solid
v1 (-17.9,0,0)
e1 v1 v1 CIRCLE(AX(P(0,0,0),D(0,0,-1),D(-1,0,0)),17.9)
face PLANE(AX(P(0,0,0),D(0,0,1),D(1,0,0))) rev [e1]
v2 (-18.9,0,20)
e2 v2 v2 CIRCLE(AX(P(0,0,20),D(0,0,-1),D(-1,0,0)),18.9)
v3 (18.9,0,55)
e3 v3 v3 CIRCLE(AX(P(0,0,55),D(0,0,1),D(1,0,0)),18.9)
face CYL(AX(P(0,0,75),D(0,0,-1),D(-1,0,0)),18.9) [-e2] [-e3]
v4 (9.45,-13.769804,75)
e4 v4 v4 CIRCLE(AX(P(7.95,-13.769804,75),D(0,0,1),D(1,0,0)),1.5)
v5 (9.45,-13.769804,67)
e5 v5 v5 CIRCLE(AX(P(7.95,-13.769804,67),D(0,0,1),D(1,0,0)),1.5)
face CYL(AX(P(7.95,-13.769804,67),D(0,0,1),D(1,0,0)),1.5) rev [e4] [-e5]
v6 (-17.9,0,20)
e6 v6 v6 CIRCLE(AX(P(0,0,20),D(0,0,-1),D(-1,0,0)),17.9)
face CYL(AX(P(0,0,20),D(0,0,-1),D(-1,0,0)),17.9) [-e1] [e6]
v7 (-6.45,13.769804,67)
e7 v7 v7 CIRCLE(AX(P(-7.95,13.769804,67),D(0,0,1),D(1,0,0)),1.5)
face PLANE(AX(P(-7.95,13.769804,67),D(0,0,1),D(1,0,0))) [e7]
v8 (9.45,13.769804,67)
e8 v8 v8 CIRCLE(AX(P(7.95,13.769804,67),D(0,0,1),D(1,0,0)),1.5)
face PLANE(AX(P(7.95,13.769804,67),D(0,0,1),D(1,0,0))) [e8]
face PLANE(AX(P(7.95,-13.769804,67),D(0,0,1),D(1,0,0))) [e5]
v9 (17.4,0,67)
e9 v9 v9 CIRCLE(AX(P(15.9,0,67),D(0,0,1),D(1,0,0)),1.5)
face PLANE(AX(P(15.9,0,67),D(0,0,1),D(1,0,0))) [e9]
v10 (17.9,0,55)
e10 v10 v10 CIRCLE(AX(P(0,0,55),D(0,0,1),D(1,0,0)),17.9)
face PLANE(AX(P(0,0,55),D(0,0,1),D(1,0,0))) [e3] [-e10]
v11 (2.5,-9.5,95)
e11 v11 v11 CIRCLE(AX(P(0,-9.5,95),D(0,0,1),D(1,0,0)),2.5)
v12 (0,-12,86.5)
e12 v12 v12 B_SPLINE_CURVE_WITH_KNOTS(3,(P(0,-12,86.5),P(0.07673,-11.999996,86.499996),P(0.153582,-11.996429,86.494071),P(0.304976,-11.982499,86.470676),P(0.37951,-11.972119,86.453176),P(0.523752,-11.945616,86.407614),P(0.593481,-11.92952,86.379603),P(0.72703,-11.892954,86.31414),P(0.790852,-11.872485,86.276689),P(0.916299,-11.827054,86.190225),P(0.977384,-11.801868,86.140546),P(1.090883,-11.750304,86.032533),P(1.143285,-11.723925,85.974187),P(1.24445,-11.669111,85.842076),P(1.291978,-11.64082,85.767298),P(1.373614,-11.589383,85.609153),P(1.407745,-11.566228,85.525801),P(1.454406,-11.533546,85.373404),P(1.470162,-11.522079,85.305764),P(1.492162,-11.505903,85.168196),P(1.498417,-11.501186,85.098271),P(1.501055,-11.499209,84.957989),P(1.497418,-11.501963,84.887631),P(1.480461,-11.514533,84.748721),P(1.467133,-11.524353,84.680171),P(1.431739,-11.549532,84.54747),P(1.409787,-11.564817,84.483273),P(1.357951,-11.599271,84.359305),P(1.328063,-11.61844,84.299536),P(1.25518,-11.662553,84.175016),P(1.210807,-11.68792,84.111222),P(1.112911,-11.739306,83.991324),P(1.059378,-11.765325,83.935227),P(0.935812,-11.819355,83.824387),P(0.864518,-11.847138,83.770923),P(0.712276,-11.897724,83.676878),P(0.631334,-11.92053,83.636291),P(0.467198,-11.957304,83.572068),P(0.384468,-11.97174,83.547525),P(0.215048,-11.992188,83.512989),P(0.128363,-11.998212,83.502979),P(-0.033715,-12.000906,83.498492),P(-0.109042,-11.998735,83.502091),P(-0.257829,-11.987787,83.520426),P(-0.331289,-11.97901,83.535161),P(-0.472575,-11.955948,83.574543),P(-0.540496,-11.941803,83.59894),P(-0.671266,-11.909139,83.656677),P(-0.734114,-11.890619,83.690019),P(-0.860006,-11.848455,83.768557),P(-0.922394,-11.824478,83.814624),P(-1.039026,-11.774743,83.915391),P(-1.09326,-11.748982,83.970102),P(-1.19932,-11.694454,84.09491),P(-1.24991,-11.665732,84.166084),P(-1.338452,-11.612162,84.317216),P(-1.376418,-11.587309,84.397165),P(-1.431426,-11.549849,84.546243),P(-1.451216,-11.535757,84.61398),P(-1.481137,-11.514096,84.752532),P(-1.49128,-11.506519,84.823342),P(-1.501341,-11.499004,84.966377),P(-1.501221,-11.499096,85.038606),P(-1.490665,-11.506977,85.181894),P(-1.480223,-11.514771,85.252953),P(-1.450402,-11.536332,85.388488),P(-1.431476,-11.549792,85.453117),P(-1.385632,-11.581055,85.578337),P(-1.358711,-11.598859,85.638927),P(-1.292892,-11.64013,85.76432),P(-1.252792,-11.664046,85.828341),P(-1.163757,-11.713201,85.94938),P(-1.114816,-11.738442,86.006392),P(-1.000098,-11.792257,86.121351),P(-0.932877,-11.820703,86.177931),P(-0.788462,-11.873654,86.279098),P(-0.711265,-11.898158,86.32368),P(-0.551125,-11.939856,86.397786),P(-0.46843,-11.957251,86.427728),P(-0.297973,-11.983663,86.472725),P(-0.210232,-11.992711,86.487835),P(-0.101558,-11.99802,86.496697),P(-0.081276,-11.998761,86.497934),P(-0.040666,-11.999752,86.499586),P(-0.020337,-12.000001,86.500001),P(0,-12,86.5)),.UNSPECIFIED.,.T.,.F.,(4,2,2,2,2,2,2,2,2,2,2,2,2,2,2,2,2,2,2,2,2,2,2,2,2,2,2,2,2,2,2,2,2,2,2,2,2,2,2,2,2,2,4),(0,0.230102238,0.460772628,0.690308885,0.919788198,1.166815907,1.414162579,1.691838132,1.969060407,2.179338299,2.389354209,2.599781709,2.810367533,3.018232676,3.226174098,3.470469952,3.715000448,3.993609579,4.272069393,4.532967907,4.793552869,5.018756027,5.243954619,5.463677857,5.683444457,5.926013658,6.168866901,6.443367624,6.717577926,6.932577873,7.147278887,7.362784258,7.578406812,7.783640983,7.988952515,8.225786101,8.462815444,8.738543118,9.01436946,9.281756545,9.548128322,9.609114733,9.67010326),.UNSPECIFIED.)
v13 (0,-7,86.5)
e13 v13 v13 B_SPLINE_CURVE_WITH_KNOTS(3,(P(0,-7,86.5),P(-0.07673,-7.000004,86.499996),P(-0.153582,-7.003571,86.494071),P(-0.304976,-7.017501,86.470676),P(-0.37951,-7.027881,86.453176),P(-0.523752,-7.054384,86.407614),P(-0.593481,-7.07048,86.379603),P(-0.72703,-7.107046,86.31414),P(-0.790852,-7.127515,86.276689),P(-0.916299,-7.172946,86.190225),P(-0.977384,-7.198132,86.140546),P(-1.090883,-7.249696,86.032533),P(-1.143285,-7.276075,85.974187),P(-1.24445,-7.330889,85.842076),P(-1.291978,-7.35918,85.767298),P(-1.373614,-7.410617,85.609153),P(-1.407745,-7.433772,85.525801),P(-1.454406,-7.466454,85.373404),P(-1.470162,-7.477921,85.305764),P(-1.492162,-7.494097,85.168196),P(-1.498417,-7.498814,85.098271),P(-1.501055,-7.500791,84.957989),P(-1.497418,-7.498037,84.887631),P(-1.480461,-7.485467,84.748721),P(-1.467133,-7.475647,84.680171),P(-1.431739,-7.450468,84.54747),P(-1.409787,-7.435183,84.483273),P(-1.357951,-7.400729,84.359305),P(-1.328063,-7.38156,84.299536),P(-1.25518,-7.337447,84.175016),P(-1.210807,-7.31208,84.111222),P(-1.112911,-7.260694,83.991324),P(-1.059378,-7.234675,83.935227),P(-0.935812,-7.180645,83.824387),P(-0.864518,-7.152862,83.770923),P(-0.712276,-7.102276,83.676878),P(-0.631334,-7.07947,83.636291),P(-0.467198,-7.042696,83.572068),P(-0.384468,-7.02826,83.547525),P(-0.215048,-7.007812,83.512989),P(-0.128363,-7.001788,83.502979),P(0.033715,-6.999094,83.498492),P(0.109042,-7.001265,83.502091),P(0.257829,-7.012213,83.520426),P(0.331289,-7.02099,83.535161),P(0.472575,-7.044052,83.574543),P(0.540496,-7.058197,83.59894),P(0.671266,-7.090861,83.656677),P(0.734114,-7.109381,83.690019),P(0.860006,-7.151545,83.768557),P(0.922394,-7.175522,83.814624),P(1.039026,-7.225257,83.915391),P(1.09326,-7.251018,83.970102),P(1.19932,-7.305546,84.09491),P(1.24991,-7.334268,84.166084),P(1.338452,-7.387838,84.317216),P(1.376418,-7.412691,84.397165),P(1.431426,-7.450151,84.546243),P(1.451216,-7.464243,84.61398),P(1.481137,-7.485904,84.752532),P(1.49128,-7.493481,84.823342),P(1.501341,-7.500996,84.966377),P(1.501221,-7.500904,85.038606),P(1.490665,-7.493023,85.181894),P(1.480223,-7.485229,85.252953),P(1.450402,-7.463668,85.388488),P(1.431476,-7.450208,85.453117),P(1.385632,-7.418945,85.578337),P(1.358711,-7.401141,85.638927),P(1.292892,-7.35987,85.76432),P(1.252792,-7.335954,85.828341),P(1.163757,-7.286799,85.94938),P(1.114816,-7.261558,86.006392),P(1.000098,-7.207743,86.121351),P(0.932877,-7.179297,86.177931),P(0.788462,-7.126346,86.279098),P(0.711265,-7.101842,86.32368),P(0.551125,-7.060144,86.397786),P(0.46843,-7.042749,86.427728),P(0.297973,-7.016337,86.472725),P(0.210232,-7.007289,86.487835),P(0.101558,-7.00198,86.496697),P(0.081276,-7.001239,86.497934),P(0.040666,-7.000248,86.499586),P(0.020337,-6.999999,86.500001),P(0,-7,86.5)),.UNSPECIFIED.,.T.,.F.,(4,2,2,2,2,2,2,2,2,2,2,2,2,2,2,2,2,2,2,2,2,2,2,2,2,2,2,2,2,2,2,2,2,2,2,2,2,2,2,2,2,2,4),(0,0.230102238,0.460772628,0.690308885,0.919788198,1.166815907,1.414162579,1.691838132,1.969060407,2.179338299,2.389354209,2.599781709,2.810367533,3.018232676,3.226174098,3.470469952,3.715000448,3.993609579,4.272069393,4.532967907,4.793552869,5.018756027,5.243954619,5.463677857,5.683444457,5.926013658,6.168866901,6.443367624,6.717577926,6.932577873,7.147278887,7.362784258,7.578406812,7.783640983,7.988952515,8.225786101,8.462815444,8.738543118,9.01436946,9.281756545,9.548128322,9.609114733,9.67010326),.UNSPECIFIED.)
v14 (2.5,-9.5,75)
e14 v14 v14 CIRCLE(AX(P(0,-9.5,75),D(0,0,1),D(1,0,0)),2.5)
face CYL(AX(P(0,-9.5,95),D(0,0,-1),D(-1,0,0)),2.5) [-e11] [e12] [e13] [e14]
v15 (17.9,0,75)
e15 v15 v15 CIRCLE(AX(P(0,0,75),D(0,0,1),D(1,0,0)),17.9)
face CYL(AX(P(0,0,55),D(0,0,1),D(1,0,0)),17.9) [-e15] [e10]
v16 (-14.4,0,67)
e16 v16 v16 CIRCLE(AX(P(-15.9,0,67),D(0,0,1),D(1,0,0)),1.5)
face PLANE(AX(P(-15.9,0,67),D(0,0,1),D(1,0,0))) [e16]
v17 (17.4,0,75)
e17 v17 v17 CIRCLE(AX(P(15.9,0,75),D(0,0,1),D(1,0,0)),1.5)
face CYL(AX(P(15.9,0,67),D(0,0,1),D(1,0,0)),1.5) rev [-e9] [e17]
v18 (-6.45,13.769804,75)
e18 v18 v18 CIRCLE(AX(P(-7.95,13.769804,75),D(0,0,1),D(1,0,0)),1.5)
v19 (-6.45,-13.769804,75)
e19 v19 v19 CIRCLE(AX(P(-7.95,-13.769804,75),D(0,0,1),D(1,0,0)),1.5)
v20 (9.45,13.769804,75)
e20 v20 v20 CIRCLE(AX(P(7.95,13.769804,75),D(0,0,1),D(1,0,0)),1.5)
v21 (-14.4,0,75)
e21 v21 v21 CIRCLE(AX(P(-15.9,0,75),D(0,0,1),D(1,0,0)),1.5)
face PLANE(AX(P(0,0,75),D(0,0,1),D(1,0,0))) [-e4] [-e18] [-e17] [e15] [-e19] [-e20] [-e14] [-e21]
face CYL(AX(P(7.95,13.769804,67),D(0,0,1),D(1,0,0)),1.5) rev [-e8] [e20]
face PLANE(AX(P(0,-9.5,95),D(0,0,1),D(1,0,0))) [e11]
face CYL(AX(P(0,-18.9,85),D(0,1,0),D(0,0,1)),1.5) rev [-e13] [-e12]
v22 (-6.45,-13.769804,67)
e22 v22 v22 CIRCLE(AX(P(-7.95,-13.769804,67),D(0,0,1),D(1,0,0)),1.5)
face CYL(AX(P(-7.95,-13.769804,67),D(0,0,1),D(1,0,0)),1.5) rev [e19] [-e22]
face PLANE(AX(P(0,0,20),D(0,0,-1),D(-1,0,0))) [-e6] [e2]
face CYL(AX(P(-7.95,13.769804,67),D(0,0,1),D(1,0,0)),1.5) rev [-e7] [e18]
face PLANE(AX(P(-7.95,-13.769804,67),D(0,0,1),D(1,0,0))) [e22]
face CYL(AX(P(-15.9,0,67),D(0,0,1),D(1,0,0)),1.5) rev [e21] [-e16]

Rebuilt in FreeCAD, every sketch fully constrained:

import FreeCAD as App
import Part
import Sketcher

doc = App.newDocument("Part")
body = doc.addObject("PartDesign::Body", "Body")

# Sketch on XY plane
sketch1 = body.newObject("Sketcher::SketchObject", "Sketch")
sketch1.AttachmentSupport = (doc.getObject("XY_Plane"), [""])
sketch1.MapMode = "FlatFace"
sketch1.addGeometry(Part.Circle(App.Vector(0, 0, 0), App.Vector(0, 0, 1), 19), False)
sketch1.addConstraint(Sketcher.Constraint("Coincident", 0, 3, -1, 1))
sketch1.addConstraint(Sketcher.Constraint("Diameter", 0, 37.8))
pad1 = body.newObject("PartDesign::Pad", "Pad")
pad1.Profile = sketch1
pad1.Length = 75

# Sketch on XY plane
sketch2 = body.newObject("Sketcher::SketchObject", "Sketch001")
sketch2.AttachmentSupport = (doc.getObject("XY_Plane"), [""])
sketch2.MapMode = "FlatFace"
sketch2.AttachmentOffset = App.Placement(App.Vector(0, 0, 75), App.Rotation())
sketch2.addGeometry(Part.Circle(App.Vector(15.9, 0, 0), App.Vector(0, 0, 1), 1.5), False)
sketch2.addGeometry(Part.Circle(App.Vector(8, -13.8, 0), App.Vector(0, 0, 1), 1.5), False)
sketch2.addGeometry(Part.Circle(App.Vector(-8, -13.8, 0), App.Vector(0, 0, 1), 1.5), False)
sketch2.addGeometry(Part.Circle(App.Vector(-15.9, 0, 0), App.Vector(0, 0, 1), 1.5), False)
sketch2.addGeometry(Part.Circle(App.Vector(-8, 13.8, 0), App.Vector(0, 0, 1), 1.5), False)
sketch2.addGeometry(Part.Circle(App.Vector(8, 13.8, 0), App.Vector(0, 0, 1), 1.5), False)
sketch2.addConstraint(Sketcher.Constraint("Equal", 0, 1))
sketch2.addConstraint(Sketcher.Constraint("Equal", 1, 2))
sketch2.addConstraint(Sketcher.Constraint("Equal", 2, 3))
sketch2.addConstraint(Sketcher.Constraint("Equal", 3, 4))
sketch2.addConstraint(Sketcher.Constraint("Equal", 4, 5))
sketch2.addConstraint(Sketcher.Constraint("Symmetric", 0, 3, 3, 3, -1, 1))
sketch2.addConstraint(Sketcher.Constraint("Symmetric", 1, 3, 4, 3, -1, 1))
sketch2.addConstraint(Sketcher.Constraint("Symmetric", 2, 3, 5, 3, -1, 1))
sketch2.addConstraint(Sketcher.Constraint("Symmetric", 1, 3, 2, 3, -2))
sketch2.addConstraint(Sketcher.Constraint("PointOnObject", 0, 3, -1))
sketch2.addConstraint(Sketcher.Constraint("Diameter", 0, 3.0))
sketch2.addConstraint(Sketcher.Constraint("DistanceX", -1, 1, 0, 3, 15.9))
sketch2.addConstraint(Sketcher.Constraint("DistanceX", 2, 3, 1, 3, 15.9))
sketch2.addConstraint(Sketcher.Constraint("DistanceY", 1, 3, -1, 1, 13.769804))
pocket1 = body.newObject("PartDesign::Pocket", "Pocket")
pocket1.Profile = sketch2
pocket1.Length = 8

# Sketch on XY plane
sketch3 = body.newObject("Sketcher::SketchObject", "Sketch002")
sketch3.AttachmentSupport = (doc.getObject("XY_Plane"), [""])
sketch3.MapMode = "FlatFace"
sketch3.AttachmentOffset = App.Placement(App.Vector(0, 0, 75), App.Rotation())
sketch3.addGeometry(Part.Circle(App.Vector(0, -9.5, 0), App.Vector(0, 0, 1), 2.5), False)
sketch3.addConstraint(Sketcher.Constraint("PointOnObject", 0, 3, -2))
sketch3.addConstraint(Sketcher.Constraint("Diameter", 0, 5.0))
sketch3.addConstraint(Sketcher.Constraint("DistanceY", 0, 3, -1, 1, 9.5))
pad2 = body.newObject("PartDesign::Pad", "Pad001")
pad2.Profile = sketch3
pad2.Length = 20

# Sketch on XY plane
sketch4 = body.newObject("Sketcher::SketchObject", "Sketch003")
sketch4.AttachmentSupport = (doc.getObject("XY_Plane"), [""])
sketch4.MapMode = "FlatFace"
sketch4.AttachmentOffset = App.Placement(App.Vector(0, 0, 55), App.Rotation())
sketch4.addGeometry(Part.Circle(App.Vector(0, 0, 0), App.Vector(0, 0, 1), 19), False)
sketch4.addGeometry(Part.Circle(App.Vector(0, 0, 0), App.Vector(0, 0, 1), 18), False)
sketch4.addConstraint(Sketcher.Constraint("Coincident", 0, 3, -1, 1))
sketch4.addConstraint(Sketcher.Constraint("Coincident", 1, 3, -1, 1))
sketch4.addConstraint(Sketcher.Constraint("Diameter", 0, 37.8))
sketch4.addConstraint(Sketcher.Constraint("Diameter", 1, 35.8))
pocket2 = body.newObject("PartDesign::Pocket", "Pocket001")
pocket2.Profile = sketch4
pocket2.Length = 20
pocket2.Reversed = True

# Sketch on XY plane
sketch5 = body.newObject("Sketcher::SketchObject", "Sketch004")
sketch5.AttachmentSupport = (doc.getObject("XY_Plane"), [""])
sketch5.MapMode = "FlatFace"
sketch5.addGeometry(Part.Circle(App.Vector(0, 0, 0), App.Vector(0, 0, 1), 19), False)
sketch5.addGeometry(Part.Circle(App.Vector(0, 0, 0), App.Vector(0, 0, 1), 18), False)
sketch5.addConstraint(Sketcher.Constraint("Coincident", 0, 3, -1, 1))
sketch5.addConstraint(Sketcher.Constraint("Coincident", 1, 3, -1, 1))
sketch5.addConstraint(Sketcher.Constraint("Diameter", 0, 37.8))
sketch5.addConstraint(Sketcher.Constraint("Diameter", 1, 35.8))
pocket3 = body.newObject("PartDesign::Pocket", "Pocket002")
pocket3.Profile = sketch5
pocket3.Length = 20
pocket3.Reversed = True

# Sketch on XZ plane
sketch6 = body.newObject("Sketcher::SketchObject", "Sketch005")
sketch6.AttachmentSupport = (doc.getObject("XZ_Plane"), [""])
sketch6.MapMode = "FlatFace"
sketch6.addGeometry(Part.Circle(App.Vector(0, 85, 0), App.Vector(0, 0, 1), 1.5), False)
sketch6.addConstraint(Sketcher.Constraint("PointOnObject", 0, 3, -2))
sketch6.addConstraint(Sketcher.Constraint("Diameter", 0, 3.0))
sketch6.addConstraint(Sketcher.Constraint("DistanceY", -1, 1, 0, 3, 85.0))
pocket4 = body.newObject("PartDesign::Pocket", "Pocket003")
pocket4.Profile = sketch6
pocket4.Type = "ThroughAll"
pocket4.Reversed = True

doc.recompute()
